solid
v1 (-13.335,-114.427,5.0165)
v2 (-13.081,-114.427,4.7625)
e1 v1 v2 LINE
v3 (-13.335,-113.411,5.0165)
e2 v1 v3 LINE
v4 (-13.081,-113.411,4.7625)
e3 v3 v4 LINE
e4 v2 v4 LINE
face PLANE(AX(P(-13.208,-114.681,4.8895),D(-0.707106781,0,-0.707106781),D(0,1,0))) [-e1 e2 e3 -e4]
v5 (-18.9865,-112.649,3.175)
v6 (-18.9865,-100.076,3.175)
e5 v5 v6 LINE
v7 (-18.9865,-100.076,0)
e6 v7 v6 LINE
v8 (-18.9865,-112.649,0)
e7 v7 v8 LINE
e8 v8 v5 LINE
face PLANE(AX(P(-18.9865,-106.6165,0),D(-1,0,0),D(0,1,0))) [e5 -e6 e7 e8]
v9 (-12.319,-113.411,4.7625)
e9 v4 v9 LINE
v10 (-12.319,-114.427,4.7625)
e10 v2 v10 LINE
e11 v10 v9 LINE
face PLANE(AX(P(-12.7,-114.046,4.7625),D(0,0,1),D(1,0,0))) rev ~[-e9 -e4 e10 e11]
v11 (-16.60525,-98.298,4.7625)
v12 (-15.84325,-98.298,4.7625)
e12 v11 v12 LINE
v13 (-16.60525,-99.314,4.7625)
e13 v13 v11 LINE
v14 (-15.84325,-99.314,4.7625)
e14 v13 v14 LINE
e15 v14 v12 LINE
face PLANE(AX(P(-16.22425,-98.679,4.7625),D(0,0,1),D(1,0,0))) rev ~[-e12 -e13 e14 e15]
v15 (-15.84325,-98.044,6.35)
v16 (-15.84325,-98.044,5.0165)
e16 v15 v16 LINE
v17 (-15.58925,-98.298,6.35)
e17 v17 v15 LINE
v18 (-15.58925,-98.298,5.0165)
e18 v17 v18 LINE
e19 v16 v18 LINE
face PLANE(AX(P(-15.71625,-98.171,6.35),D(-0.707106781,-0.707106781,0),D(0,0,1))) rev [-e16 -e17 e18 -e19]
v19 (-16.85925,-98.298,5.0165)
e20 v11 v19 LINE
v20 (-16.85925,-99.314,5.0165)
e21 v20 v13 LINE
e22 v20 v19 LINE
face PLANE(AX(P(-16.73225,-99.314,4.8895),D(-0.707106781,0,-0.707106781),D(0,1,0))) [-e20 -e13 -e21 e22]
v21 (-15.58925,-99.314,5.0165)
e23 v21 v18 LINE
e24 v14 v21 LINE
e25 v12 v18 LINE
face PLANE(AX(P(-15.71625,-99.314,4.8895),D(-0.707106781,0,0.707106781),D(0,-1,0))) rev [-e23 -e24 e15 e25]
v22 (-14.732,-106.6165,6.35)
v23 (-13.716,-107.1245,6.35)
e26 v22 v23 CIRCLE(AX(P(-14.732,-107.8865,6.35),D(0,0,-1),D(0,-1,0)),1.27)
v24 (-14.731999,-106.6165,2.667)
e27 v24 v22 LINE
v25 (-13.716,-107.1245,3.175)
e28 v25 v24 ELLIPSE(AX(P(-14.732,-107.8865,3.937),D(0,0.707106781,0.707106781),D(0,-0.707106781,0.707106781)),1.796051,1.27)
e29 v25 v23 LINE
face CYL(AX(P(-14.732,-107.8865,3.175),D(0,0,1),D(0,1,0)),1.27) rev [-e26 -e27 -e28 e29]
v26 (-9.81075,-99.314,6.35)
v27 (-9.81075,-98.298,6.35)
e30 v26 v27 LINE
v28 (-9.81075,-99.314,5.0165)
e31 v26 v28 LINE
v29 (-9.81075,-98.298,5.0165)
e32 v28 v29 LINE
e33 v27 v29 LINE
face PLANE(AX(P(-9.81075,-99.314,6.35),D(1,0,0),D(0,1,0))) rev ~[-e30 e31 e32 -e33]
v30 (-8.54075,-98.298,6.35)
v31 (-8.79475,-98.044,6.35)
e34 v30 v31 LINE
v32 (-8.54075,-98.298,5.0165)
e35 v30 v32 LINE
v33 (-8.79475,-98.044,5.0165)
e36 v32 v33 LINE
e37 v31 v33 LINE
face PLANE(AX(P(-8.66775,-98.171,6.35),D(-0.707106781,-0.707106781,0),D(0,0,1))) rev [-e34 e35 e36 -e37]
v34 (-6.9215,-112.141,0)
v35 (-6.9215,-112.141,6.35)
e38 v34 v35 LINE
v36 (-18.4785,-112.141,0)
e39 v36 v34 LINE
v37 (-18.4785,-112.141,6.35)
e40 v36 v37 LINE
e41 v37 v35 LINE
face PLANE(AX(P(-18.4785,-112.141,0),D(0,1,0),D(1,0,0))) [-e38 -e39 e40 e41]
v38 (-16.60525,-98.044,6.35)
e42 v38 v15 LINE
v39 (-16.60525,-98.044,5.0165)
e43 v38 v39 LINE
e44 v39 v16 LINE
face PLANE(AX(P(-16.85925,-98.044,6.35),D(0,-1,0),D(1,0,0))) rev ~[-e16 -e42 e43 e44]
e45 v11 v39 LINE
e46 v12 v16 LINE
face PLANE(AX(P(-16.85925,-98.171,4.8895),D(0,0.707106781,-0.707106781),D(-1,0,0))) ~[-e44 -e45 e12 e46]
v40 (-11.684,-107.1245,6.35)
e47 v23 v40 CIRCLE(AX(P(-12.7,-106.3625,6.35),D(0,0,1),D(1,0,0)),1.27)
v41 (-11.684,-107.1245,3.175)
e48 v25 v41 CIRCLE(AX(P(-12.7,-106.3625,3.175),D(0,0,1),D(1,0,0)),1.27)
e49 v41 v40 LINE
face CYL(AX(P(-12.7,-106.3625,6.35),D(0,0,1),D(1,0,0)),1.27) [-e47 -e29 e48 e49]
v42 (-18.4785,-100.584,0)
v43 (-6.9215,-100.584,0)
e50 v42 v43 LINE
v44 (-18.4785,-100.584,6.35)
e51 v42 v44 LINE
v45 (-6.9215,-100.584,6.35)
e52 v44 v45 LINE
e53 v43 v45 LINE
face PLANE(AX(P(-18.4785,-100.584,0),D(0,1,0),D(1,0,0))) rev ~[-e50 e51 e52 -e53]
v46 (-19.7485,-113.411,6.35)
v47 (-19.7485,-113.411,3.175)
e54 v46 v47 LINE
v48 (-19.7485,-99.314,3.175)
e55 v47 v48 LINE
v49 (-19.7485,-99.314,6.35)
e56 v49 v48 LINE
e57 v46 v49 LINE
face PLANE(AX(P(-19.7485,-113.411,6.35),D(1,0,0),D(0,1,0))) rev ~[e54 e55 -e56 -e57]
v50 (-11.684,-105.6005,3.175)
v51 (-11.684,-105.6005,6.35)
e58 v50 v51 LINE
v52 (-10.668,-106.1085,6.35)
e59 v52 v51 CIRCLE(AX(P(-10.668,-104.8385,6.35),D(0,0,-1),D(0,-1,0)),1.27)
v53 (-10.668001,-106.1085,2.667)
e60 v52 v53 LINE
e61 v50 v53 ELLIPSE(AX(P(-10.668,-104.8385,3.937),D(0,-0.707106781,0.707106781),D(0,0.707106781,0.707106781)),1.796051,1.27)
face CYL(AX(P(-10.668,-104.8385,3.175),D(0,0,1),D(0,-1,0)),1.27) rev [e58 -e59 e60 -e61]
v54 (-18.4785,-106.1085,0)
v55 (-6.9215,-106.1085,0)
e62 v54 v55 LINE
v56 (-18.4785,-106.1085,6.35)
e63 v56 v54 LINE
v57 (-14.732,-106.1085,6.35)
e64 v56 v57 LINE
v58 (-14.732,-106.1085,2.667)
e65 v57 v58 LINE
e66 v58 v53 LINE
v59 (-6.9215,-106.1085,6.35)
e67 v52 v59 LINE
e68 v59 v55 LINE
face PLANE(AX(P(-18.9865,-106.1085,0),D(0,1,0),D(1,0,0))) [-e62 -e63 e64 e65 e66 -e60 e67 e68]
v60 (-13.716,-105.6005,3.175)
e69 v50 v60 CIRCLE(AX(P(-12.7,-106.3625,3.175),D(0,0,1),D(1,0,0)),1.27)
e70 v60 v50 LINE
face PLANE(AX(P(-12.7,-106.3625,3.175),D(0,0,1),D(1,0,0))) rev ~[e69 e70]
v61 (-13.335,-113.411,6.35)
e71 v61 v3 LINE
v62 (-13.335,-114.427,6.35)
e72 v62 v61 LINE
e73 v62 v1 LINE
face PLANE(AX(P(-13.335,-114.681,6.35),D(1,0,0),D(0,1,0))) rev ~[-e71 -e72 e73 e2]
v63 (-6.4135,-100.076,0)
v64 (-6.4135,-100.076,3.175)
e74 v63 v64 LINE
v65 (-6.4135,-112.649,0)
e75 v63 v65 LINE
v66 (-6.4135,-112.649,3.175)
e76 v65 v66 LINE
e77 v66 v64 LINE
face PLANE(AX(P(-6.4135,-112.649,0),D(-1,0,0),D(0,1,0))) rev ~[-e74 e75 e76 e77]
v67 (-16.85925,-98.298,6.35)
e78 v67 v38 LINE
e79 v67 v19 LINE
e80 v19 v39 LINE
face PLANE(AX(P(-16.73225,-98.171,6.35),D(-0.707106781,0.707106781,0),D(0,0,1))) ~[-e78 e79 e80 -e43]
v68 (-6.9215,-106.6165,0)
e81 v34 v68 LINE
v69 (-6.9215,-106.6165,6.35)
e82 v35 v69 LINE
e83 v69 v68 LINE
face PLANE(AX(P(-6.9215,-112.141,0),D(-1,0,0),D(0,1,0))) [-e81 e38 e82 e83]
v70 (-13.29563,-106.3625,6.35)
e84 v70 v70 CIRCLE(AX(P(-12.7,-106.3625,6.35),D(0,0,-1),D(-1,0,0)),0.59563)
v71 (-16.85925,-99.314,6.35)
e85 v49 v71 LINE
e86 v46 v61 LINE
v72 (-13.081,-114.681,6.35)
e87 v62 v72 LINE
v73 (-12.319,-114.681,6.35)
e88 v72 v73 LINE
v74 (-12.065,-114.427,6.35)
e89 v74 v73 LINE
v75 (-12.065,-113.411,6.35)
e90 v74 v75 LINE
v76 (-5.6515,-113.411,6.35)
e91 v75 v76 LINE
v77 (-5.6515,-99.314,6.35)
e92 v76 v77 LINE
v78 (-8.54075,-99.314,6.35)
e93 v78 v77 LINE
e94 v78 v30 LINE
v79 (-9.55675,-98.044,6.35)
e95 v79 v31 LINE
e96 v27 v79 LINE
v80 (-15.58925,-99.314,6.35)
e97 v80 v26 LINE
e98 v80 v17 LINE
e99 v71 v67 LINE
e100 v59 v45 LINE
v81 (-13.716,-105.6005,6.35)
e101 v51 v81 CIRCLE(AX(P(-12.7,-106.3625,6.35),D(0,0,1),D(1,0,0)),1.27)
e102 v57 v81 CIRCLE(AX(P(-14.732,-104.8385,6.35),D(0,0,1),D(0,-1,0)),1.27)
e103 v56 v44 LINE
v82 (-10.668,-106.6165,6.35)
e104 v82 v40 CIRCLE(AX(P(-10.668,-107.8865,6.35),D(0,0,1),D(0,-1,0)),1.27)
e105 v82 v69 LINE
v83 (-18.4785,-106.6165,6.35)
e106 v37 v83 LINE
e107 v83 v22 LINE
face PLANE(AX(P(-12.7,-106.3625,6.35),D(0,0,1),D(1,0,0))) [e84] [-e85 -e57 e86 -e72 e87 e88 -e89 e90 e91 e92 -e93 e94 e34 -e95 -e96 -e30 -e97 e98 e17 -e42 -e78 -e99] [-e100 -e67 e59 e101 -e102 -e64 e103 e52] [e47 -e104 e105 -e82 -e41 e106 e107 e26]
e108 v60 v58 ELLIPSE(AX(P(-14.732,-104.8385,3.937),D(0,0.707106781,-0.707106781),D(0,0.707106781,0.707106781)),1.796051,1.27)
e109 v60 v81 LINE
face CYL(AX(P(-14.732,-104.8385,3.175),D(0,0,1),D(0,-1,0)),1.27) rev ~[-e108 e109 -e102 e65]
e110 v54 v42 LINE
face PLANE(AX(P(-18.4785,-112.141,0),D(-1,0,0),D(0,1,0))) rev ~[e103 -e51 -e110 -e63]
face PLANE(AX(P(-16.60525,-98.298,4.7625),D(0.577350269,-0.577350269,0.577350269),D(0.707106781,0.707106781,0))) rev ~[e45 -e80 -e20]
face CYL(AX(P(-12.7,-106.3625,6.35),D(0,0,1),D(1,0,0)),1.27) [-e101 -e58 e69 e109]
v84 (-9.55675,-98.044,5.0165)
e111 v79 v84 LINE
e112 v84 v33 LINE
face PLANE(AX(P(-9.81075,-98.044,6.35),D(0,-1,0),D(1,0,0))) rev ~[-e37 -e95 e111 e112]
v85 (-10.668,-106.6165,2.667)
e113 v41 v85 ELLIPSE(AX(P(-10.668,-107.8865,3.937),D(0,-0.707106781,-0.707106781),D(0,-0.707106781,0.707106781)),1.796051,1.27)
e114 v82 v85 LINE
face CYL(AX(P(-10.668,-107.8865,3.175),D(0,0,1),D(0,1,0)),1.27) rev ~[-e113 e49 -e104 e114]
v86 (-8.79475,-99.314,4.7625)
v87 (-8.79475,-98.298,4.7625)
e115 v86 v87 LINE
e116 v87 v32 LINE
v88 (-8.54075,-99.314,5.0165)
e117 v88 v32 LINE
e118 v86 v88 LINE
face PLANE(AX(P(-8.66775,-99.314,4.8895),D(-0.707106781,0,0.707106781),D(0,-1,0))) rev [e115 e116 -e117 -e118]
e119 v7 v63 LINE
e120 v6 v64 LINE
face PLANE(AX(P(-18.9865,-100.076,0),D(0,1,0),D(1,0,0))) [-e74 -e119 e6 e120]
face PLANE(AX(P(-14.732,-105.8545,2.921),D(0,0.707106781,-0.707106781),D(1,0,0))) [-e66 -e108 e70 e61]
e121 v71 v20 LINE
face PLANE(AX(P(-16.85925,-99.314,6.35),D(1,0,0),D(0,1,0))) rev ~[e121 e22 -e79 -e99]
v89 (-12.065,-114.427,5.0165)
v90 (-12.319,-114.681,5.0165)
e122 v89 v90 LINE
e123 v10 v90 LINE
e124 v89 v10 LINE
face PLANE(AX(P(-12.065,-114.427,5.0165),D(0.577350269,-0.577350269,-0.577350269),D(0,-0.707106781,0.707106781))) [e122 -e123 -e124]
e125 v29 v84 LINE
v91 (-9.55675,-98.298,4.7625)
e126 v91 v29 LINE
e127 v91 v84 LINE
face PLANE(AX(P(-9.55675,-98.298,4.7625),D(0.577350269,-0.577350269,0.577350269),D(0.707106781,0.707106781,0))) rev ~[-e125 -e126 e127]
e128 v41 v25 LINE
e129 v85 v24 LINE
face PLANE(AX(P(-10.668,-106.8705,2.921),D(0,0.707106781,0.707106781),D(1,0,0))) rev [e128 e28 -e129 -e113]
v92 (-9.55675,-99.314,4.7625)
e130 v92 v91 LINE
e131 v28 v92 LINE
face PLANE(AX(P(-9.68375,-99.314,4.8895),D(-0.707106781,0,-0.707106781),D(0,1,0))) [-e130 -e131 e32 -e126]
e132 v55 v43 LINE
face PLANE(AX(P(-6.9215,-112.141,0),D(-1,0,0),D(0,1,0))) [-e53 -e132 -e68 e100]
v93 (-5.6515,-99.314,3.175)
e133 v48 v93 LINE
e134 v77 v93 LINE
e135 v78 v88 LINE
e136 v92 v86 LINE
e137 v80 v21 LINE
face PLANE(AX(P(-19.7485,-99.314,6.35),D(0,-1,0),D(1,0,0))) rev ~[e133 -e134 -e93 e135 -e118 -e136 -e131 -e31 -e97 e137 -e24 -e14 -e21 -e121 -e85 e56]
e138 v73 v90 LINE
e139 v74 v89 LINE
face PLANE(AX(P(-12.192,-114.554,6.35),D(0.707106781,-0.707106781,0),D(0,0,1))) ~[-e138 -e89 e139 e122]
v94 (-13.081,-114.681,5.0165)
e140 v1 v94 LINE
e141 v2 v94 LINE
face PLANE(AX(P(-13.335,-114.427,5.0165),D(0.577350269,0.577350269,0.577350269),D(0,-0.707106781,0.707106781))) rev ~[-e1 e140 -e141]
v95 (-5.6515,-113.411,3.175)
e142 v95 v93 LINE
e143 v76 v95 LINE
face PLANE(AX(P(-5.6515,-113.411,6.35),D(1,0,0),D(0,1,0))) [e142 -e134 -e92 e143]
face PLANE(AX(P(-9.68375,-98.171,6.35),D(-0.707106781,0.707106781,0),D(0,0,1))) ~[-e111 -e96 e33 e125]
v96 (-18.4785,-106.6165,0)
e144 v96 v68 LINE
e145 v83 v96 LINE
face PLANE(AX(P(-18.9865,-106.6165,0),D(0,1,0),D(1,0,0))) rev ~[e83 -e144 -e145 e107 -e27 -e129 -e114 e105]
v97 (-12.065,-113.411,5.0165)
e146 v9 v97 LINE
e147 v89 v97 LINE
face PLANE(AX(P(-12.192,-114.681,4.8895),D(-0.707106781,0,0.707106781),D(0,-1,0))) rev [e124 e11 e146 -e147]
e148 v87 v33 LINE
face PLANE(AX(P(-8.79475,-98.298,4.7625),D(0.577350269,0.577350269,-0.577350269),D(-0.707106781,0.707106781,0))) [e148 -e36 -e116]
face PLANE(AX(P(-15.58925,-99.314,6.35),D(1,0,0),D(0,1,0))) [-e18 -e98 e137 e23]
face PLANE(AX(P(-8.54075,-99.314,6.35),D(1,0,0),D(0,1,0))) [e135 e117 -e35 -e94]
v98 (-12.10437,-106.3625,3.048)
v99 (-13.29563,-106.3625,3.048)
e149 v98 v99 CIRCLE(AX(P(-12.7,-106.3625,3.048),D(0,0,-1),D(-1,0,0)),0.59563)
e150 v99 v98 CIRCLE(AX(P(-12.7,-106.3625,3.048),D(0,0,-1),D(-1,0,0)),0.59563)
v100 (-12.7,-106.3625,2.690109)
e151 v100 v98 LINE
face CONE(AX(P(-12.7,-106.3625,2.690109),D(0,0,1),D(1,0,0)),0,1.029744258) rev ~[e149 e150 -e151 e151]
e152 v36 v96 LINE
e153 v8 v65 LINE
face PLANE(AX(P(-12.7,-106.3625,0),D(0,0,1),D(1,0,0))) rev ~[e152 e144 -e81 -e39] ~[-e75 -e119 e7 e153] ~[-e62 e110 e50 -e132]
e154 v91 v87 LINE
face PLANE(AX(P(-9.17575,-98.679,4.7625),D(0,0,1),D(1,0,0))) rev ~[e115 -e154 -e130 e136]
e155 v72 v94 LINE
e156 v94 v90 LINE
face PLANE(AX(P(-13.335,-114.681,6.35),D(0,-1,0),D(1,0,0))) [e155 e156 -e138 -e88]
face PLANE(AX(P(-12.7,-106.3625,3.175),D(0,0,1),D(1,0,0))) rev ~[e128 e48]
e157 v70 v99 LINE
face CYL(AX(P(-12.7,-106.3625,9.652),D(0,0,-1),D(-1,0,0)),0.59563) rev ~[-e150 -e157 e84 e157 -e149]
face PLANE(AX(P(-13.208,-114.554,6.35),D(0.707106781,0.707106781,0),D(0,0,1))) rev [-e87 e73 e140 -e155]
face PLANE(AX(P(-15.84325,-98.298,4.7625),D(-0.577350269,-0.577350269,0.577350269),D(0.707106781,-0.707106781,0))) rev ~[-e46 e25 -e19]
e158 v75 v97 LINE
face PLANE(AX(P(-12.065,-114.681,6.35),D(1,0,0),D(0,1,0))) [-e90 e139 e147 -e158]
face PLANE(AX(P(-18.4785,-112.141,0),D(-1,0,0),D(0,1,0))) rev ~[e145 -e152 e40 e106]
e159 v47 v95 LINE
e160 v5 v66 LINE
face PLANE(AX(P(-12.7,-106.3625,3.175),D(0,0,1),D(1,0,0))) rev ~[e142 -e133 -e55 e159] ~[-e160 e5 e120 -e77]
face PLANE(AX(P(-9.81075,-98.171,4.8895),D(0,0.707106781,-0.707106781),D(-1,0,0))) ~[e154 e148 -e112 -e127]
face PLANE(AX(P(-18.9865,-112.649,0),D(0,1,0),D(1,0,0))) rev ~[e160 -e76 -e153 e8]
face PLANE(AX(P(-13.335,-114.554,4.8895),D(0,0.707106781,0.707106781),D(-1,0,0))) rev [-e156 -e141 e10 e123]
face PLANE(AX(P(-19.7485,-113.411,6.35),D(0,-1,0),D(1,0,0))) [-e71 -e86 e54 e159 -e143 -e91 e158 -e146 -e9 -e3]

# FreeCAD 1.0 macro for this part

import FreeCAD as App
import Part
import Sketcher
Q = App.Units.Quantity


def edges_at(feature, points):
    """Names of the edges that pass closest to the given points."""
    edges = feature.Shape.Edges
    near = lambda p: min(range(len(edges)), key=lambda i: edges[i].distToShape(Part.Vertex(*p))[0])
    return sorted({f"Edge{near(p) + 1}" for p in points})


def add_polygon(sketch, points):
    """Adds a closed chain of lines whose ends are joined by coincident constraints."""
    first, n = sketch.GeometryCount, len(points)
    for a, b in zip(points, points[1:] + points[:1]):
        sketch.addGeometry(Part.LineSegment(App.Vector(*a, 0), App.Vector(*b, 0)), False)
    for i in range(n):
        sketch.addConstraint(Sketcher.Constraint("Coincident", first + i, 2, first + (i + 1) % n, 1))

doc = App.newDocument("Part")
body = doc.addObject("PartDesign::Body", "Body")

sketch1 = doc.addObject("Sketcher::SketchObject", "Sketch")
body.addObject(sketch1)
sketch1.AttachmentSupport = (doc.XY_Plane, [""])
sketch1.MapMode = "FlatFace"
add_polygon(sketch1, [(-18.9865, -100.076), (-18.9865, -112.649), (-6.4135, -112.649), (-6.4135, -100.076)])
add_polygon(sketch1, [(-6.9215, -112.141), (-18.4785, -112.141), (-18.4785, -100.584), (-6.9215, -100.584)])
sketch1.addConstraint(Sketcher.Constraint("Vertical", 0))
sketch1.addConstraint(Sketcher.Constraint("Horizontal", 1))
sketch1.addConstraint(Sketcher.Constraint("Vertical", 2))
sketch1.addConstraint(Sketcher.Constraint("Horizontal", 3))
sketch1.addConstraint(Sketcher.Constraint("Horizontal", 4))
sketch1.addConstraint(Sketcher.Constraint("Vertical", 5))
sketch1.addConstraint(Sketcher.Constraint("Horizontal", 6))
sketch1.addConstraint(Sketcher.Constraint("Vertical", 7))
sketch1.addConstraint(Sketcher.Constraint("Equal", 3, 0))
sketch1.addConstraint(Sketcher.Constraint("Equal", 6, 5))
sketch1.addConstraint(Sketcher.Constraint("DistanceX", 1, 1, 1, 2, Q("0.495 in")))
sketch1.addConstraint(Sketcher.Constraint("DistanceX", 4, 2, 4, 1, Q("0.455 in")))
sketch1.addConstraint(Sketcher.Constraint("DistanceY", 2, 2, -1, 1, Q("3.94 in")))
sketch1.addConstraint(Sketcher.Constraint("DistanceY", 5, 2, -1, 1, Q("3.96 in")))
sketch1.addConstraint(Sketcher.Constraint("DistanceX", 0, 2, 4, 2, Q("0.02 in")))
sketch1.addConstraint(Sketcher.Constraint("DistanceX", 0, 2, -1, 1, Q("0.7475 in")))
pad1 = doc.addObject("PartDesign::Pad", "Pad")
body.addObject(pad1)
pad1.Profile = sketch1
pad1.Length = Q("0.25 in")

sketch2 = doc.addObject("Sketcher::SketchObject", "Sketch001")
body.addObject(sketch2)
sketch2.AttachmentSupport = (doc.XY_Plane, [""])
sketch2.MapMode = "FlatFace"
add_polygon(sketch2, [(-18.9865, -106.1085), (-18.9865, -106.6165), (-6.4135, -106.6165), (-6.4135, -106.1085)])
sketch2.addConstraint(Sketcher.Constraint("Vertical", 0))
sketch2.addConstraint(Sketcher.Constraint("Horizontal", 1))
sketch2.addConstraint(Sketcher.Constraint("Vertical", 2))
sketch2.addConstraint(Sketcher.Constraint("Horizontal", 3))
sketch2.addConstraint(Sketcher.Constraint("DistanceY", 0, 2, 0, 1, Q("0.02 in")))
sketch2.addConstraint(Sketcher.Constraint("DistanceX", 1, 1, 1, 2, Q("0.495 in")))
sketch2.addConstraint(Sketcher.Constraint("DistanceX", 0, 2, -1, 1, Q("0.7475 in")))
sketch2.addConstraint(Sketcher.Constraint("DistanceY", 0, 2, -1, 1, Q("4.1975 in")))
pad2 = doc.addObject("PartDesign::Pad", "Pad001")
body.addObject(pad2)
pad2.Profile = sketch2
pad2.Length = Q("0.25 in")

sketch3 = doc.addObject("Sketcher::SketchObject", "Sketch002")
body.addObject(sketch3)
sketch3.AttachmentSupport = (doc.XY_Plane, [""])
sketch3.MapMode = "FlatFace"
sketch3.AttachmentOffset = App.Placement(App.Vector(0, 0, 0.25 * 25.4), App.Rotation())
add_polygon(sketch3, [(-19.7485, -99.314), (-19.7485, -113.411), (-5.6515, -113.411), (-5.6515, -99.314)])
add_polygon(sketch3, [(-6.4135, -112.649), (-18.9865, -112.649), (-18.9865, -100.076), (-6.4135, -100.076)])
sketch3.addConstraint(Sketcher.Constraint("Vertical", 0))
sketch3.addConstraint(Sketcher.Constraint("Horizontal", 1))
sketch3.addConstraint(Sketcher.Constraint("Vertical", 2))
sketch3.addConstraint(Sketcher.Constraint("Horizontal", 3))
sketch3.addConstraint(Sketcher.Constraint("Horizontal", 4))
sketch3.addConstraint(Sketcher.Constraint("Vertical", 5))
sketch3.addConstraint(Sketcher.Constraint("Horizontal", 6))
sketch3.addConstraint(Sketcher.Constraint("Vertical", 7))
sketch3.addConstraint(Sketcher.Constraint("Equal", 3, 0))
sketch3.addConstraint(Sketcher.Constraint("Equal", 6, 5))
sketch3.addConstraint(Sketcher.Constraint("DistanceX", 1, 1, 1, 2, Q("0.555 in")))
sketch3.addConstraint(Sketcher.Constraint("DistanceX", 4, 2, 4, 1, Q("0.495 in")))
sketch3.addConstraint(Sketcher.Constraint("DistanceY", 2, 2, -1, 1, Q("3.91 in")))
sketch3.addConstraint(Sketcher.Constraint("DistanceY", 5, 2, -1, 1, Q("3.94 in")))
sketch3.addConstraint(Sketcher.Constraint("DistanceX", 0, 2, 4, 2, Q("0.03 in")))
sketch3.addConstraint(Sketcher.Constraint("DistanceX", 0, 2, -1, 1, Q("0.7775 in")))
pad3 = doc.addObject("PartDesign::Pad", "Pad002")
body.addObject(pad3)
pad3.Profile = sketch3
pad3.Length = Q("0.125 in")
pad3.Reversed = True

sketch4 = doc.addObject("Sketcher::SketchObject", "Sketch003")
body.addObject(sketch4)
sketch4.AttachmentSupport = (doc.XY_Plane, [""])
sketch4.MapMode = "FlatFace"
sketch4.AttachmentOffset = App.Placement(App.Vector(0, 0, 0.25 * 25.4), App.Rotation())
sketch4.addGeometry(Part.Circle(App.Vector(-12.7, -106.3625, 0), App.Vector(0, 0, 1), 1.27), False)
sketch4.addConstraint(Sketcher.Constraint("Diameter", 0, Q("0.1 in")))
sketch4.addConstraint(Sketcher.Constraint("DistanceX", 0, 3, -1, 1, Q("0.5 in")))
sketch4.addConstraint(Sketcher.Constraint("DistanceY", 0, 3, -1, 1, Q("4.1875 in")))
pad4 = doc.addObject("PartDesign::Pad", "Pad003")
body.addObject(pad4)
pad4.Profile = sketch4
pad4.Length = Q("0.125 in")
pad4.Reversed = True
doc.recompute()

fillet = doc.addObject("PartDesign::Fillet", "Fillet")
body.addObject(fillet)
fillet.Base = (pad4, edges_at(pad4, [
    (-13.944, -106.617, 4.763),
    (-11.456, -106.617, 4.763),
    (-11.456, -106.109, 4.763),
    (-13.944, -106.109, 4.763),
]))
fillet.Radius = Q("0.05 in")
doc.recompute()

chamfer = doc.addObject("PartDesign::Chamfer", "Chamfer")
body.addObject(chamfer)
chamfer.Base = (fillet, edges_at(fillet, [(-12.7, -106.617, 3.175), (-12.7, -106.109, 3.175)]))
chamfer.Size = Q("0.02 in")

sketch5 = doc.addObject("Sketcher::SketchObject", "Sketch004")
body.addObject(sketch5)
sketch5.AttachmentSupport = (doc.XY_Plane, [""])
sketch5.MapMode = "FlatFace"
sketch5.AttachmentOffset = App.Placement(App.Vector(0, 0, 0.25 * 25.4), App.Rotation())
sketch5.addGeometry(Part.Circle(App.Vector(-12.7, -106.3625, 0), App.Vector(0, 0, 1), 0.59563), False)
sketch5.addConstraint(Sketcher.Constraint("Diameter", 0, Q("0.0469 in")))
sketch5.addConstraint(Sketcher.Constraint("DistanceX", 0, 3, -1, 1, Q("0.5 in")))
sketch5.addConstraint(Sketcher.Constraint("DistanceY", 0, 3, -1, 1, Q("4.1875 in")))
doc.recompute()
hole = doc.addObject("PartDesign::Hole", "Hole")
body.addObject(hole)
hole.Profile = sketch5
hole.ThreadType = "None"
hole.Diameter = Q("0.0469 in")
hole.DepthType = "Dimension"
hole.Depth = Q("0.13 in")
hole.DrillPoint = "Angled"
hole.DrillPointAngle = 118

sketch6 = doc.addObject("Sketcher::SketchObject", "Sketch005")
body.addObject(sketch6)
sketch6.AttachmentSupport = (doc.XY_Plane, [""])
sketch6.MapMode = "FlatFace"
sketch6.AttachmentOffset = App.Placement(App.Vector(0, 0, 0.25 * 25.4), App.Rotation())
add_polygon(sketch6, [(-13.335, -113.411), (-13.335, -114.681), (-12.065, -114.681), (-12.065, -113.411)])
add_polygon(sketch6, [(-9.81075, -98.044), (-9.81075, -99.314), (-8.54075, -99.314), (-8.54075, -98.044)])
add_polygon(sketch6, [(-16.85925, -98.044), (-16.85925, -99.314), (-15.58925, -99.314), (-15.58925, -98.044)])
sketch6.addConstraint(Sketcher.Constraint("Vertical", 0))
sketch6.addConstraint(Sketcher.Constraint("Horizontal", 1))
sketch6.addConstraint(Sketcher.Constraint("Vertical", 2))
sketch6.addConstraint(Sketcher.Constraint("Horizontal", 3))
sketch6.addConstraint(Sketcher.Constraint("Vertical", 4))
sketch6.addConstraint(Sketcher.Constraint("Horizontal", 5))
sketch6.addConstraint(Sketcher.Constraint("Vertical", 6))
sketch6.addConstraint(Sketcher.Constraint("Horizontal", 7))
sketch6.addConstraint(Sketcher.Constraint("Vertical", 8))
sketch6.addConstraint(Sketcher.Constraint("Horizontal", 9))
sketch6.addConstraint(Sketcher.Constraint("Vertical", 10))
sketch6.addConstraint(Sketcher.Constraint("Horizontal", 11))
sketch6.addConstraint(Sketcher.Constraint("Horizontal", 5, 2, 8, 2))
sketch6.addConstraint(Sketcher.Constraint("Horizontal", 7, 2, 10, 2))
sketch6.addConstraint(Sketcher.Constraint("Equal", 3, 5))
sketch6.addConstraint(Sketcher.Constraint("Equal", 7, 9))
sketch6.addConstraint(Sketcher.Constraint("Equal", 11, 0))
sketch6.addConstraint(Sketcher.Constraint("Equal", 2, 4))
sketch6.addConstraint(Sketcher.Constraint("DistanceX", 1, 1, 1, 2, Q("0.05 in")))
sketch6.addConstraint(Sketcher.Constraint("DistanceY", 4, 2, -1, 1, Q("3.91 in")))
sketch6.addConstraint(Sketcher.Constraint("DistanceX", 0, 2, -1, 1, Q("0.525 in")))
sketch6.addConstraint(Sketcher.Constraint("DistanceY", 0, 2, -1, 1, Q("4.515 in")))
sketch6.addConstraint(Sketcher.Constraint("DistanceX", 8, 2, 4, 2, Q("0.2775 in")))
sketch6.addConstraint(Sketcher.Constraint("DistanceX", 4, 2, -1, 1, Q("9.81075 mm")))
pad5 = doc.addObject("PartDesign::Pad", "Pad004")
body.addObject(pad5)
pad5.Profile = sketch6
pad5.Length = Q("0.0625 in")
pad5.Reversed = True
doc.recompute()

chamfer2 = doc.addObject("PartDesign::Chamfer", "Chamfer001")
body.addObject(chamfer2)
chamfer2.Base = (pad5, edges_at(pad5, [
    (-12.7, -114.681, 4.763),
    (-12.065, -114.046, 4.763),
    (-13.335, -114.046, 4.763),
    (-8.541, -98.044, 5.556),
    (-9.811, -98.044, 5.556),
    (-16.859, -98.044, 5.556),
    (-15.589, -98.044, 5.556),
    (-13.335, -114.681, 5.556),
    (-12.065, -114.681, 5.556),
    (-9.811, -98.679, 4.763),
    (-8.541, -98.679, 4.763),
    (-9.176, -98.044, 4.763),
    (-16.859, -98.679, 4.763),
    (-16.224, -98.044, 4.763),
    (-15.589, -98.679, 4.763),
]))
chamfer2.Size = Q("0.01 in")

doc.recompute()
